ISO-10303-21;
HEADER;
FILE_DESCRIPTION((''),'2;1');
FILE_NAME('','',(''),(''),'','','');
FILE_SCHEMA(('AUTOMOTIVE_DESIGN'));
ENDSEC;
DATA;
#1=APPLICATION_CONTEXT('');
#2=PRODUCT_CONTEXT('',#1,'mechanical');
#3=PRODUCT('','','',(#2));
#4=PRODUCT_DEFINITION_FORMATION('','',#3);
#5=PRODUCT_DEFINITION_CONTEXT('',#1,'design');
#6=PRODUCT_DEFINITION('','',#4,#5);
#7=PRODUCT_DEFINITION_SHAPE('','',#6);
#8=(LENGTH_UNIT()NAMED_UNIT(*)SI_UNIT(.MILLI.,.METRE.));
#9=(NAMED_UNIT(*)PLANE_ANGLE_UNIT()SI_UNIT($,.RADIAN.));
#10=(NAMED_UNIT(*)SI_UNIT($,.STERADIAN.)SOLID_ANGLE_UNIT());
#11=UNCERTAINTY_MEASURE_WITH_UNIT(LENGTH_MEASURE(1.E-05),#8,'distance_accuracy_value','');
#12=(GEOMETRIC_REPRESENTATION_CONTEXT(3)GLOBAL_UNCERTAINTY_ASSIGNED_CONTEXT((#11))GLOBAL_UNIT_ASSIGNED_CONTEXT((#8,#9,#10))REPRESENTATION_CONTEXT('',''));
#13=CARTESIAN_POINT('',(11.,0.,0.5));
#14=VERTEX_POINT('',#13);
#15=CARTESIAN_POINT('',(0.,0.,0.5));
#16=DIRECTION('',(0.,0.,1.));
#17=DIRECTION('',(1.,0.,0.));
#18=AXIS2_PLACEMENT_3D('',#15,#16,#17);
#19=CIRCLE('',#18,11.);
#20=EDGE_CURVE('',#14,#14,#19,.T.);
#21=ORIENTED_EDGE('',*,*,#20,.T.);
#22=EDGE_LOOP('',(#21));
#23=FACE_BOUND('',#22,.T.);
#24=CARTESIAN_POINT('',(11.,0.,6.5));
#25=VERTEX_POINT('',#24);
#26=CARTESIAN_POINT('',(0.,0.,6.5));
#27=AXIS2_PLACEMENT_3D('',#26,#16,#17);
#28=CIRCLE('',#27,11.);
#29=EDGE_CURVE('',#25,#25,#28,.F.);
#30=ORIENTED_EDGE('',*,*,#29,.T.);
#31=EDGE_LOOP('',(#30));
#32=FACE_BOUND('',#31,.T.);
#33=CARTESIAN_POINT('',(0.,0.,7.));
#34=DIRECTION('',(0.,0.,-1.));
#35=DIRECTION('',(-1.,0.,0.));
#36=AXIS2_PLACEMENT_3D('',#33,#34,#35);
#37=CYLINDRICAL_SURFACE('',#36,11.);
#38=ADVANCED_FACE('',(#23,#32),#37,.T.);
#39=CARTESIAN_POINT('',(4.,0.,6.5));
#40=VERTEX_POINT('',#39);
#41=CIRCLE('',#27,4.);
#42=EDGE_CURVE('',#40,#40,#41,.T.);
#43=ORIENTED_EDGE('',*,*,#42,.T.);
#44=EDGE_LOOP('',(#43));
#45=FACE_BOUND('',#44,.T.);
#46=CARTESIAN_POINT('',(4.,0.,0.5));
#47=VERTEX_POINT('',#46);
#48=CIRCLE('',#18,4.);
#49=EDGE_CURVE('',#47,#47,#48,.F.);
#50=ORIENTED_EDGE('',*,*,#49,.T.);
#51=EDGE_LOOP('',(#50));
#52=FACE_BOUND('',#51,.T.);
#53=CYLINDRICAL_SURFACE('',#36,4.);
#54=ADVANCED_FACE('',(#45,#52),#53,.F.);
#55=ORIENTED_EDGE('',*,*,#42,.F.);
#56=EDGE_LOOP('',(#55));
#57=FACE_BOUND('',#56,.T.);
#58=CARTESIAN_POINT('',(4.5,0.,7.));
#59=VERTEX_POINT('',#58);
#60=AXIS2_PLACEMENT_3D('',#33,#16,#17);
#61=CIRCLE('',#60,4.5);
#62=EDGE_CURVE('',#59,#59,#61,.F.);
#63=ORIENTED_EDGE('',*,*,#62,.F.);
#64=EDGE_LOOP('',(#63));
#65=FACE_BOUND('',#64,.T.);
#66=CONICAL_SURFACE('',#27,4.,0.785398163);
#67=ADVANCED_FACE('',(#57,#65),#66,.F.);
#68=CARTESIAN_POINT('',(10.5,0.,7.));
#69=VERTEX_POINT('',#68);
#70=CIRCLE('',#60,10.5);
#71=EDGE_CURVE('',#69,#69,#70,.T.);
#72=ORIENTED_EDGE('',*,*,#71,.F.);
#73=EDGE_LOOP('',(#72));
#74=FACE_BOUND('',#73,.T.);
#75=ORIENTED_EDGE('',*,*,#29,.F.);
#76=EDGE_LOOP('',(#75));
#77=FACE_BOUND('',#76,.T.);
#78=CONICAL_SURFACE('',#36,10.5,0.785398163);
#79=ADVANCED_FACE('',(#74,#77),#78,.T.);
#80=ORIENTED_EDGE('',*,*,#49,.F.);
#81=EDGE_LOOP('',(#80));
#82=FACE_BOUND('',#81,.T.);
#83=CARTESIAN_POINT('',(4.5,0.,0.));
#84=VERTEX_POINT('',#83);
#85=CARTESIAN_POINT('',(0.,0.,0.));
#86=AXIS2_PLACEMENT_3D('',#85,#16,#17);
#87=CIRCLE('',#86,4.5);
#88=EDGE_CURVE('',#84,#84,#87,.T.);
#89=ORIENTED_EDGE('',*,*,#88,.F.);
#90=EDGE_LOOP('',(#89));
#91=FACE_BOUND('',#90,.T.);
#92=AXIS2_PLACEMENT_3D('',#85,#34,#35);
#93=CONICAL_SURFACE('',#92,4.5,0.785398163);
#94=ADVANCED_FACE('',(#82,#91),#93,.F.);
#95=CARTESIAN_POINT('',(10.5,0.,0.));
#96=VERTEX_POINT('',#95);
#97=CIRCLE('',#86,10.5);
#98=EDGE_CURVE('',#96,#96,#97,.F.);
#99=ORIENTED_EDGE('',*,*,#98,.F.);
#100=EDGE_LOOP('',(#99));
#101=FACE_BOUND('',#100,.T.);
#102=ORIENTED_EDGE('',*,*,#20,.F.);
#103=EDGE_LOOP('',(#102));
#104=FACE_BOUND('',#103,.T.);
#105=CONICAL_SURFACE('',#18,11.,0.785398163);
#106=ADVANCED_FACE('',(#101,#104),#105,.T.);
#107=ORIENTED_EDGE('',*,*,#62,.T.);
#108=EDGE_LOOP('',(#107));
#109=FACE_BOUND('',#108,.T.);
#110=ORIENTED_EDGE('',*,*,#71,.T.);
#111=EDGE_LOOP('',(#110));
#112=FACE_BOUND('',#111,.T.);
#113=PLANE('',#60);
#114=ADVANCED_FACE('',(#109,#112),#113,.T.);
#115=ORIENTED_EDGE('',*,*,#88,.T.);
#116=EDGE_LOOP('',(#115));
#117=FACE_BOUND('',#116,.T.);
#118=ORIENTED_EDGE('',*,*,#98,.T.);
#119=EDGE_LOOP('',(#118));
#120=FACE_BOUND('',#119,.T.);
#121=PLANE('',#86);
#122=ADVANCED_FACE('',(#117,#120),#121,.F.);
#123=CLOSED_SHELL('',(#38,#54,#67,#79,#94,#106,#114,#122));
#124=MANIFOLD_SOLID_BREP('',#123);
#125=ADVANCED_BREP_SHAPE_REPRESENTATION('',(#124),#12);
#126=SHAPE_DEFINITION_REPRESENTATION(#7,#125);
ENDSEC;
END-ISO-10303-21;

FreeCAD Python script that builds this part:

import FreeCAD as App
import Part
import Sketcher

V = App.Vector


def edges_at(feature, points):
    """Names of the edges that pass closest to the given points."""
    edges = feature.Shape.Edges
    near = lambda p: min(range(len(edges)), key=lambda i: edges[i].distToShape(Part.Vertex(*p))[0])
    return sorted({f"Edge{near(p) + 1}" for p in points})

doc = App.newDocument("Part")
params = doc.addObject("Spreadsheet::Sheet", "Params")
for row, (alias, value) in enumerate([
    ("sketch1_diameter", "22 mm"),
    ("sketch1_diameter2", "8 mm"),
    ("pad1_length", "7 mm"),
    ("chamfer_size", "0.5 mm"),
], start=1):
    params.set(f"A{row}", alias)
    params.set(f"B{row}", "=" + value)
    params.setAlias(f"B{row}", alias)

body = doc.addObject("PartDesign::Body", "Body")

# Sketch on XY plane
sketch1 = body.newObject("Sketcher::SketchObject", "Sketch")
sketch1.AttachmentSupport = (doc.getObject("XY_Plane"), [""])
sketch1.MapMode = "FlatFace"
sketch1.addGeometry([
    Part.Circle(V(0, 0, 0), V(0, 0, 1), 11),
    Part.Circle(V(0, 0, 0), V(0, 0, 1), 4),
], False)
sketch1.addConstraint([
    Sketcher.Constraint("Coincident", 0, 3, -1, 1),
    Sketcher.Constraint("Coincident", 1, 3, -1, 1),
    Sketcher.Constraint("Diameter", 0, 22.0),
    Sketcher.Constraint("Diameter", 1, 8.0),
])
sketch1.setExpression("Constraints[2]", "Params.sketch1_diameter")
sketch1.setExpression("Constraints[3]", "Params.sketch1_diameter2")
pad1 = body.newObject("PartDesign::Pad", "Pad")
pad1.Profile = sketch1
pad1.setExpression("Length", "Params.pad1_length")
doc.recompute()

chamfer = body.newObject("PartDesign::Chamfer", "Chamfer")
chamfer.Base = (pad1, edges_at(pad1, [
    (-11, 0, 0),
    (-11, 0, 7),
    (-4, 0, 0),
    (-4, 0, 7),
]))
chamfer.setExpression("Size", "Params.chamfer_size")

doc.recompute()
